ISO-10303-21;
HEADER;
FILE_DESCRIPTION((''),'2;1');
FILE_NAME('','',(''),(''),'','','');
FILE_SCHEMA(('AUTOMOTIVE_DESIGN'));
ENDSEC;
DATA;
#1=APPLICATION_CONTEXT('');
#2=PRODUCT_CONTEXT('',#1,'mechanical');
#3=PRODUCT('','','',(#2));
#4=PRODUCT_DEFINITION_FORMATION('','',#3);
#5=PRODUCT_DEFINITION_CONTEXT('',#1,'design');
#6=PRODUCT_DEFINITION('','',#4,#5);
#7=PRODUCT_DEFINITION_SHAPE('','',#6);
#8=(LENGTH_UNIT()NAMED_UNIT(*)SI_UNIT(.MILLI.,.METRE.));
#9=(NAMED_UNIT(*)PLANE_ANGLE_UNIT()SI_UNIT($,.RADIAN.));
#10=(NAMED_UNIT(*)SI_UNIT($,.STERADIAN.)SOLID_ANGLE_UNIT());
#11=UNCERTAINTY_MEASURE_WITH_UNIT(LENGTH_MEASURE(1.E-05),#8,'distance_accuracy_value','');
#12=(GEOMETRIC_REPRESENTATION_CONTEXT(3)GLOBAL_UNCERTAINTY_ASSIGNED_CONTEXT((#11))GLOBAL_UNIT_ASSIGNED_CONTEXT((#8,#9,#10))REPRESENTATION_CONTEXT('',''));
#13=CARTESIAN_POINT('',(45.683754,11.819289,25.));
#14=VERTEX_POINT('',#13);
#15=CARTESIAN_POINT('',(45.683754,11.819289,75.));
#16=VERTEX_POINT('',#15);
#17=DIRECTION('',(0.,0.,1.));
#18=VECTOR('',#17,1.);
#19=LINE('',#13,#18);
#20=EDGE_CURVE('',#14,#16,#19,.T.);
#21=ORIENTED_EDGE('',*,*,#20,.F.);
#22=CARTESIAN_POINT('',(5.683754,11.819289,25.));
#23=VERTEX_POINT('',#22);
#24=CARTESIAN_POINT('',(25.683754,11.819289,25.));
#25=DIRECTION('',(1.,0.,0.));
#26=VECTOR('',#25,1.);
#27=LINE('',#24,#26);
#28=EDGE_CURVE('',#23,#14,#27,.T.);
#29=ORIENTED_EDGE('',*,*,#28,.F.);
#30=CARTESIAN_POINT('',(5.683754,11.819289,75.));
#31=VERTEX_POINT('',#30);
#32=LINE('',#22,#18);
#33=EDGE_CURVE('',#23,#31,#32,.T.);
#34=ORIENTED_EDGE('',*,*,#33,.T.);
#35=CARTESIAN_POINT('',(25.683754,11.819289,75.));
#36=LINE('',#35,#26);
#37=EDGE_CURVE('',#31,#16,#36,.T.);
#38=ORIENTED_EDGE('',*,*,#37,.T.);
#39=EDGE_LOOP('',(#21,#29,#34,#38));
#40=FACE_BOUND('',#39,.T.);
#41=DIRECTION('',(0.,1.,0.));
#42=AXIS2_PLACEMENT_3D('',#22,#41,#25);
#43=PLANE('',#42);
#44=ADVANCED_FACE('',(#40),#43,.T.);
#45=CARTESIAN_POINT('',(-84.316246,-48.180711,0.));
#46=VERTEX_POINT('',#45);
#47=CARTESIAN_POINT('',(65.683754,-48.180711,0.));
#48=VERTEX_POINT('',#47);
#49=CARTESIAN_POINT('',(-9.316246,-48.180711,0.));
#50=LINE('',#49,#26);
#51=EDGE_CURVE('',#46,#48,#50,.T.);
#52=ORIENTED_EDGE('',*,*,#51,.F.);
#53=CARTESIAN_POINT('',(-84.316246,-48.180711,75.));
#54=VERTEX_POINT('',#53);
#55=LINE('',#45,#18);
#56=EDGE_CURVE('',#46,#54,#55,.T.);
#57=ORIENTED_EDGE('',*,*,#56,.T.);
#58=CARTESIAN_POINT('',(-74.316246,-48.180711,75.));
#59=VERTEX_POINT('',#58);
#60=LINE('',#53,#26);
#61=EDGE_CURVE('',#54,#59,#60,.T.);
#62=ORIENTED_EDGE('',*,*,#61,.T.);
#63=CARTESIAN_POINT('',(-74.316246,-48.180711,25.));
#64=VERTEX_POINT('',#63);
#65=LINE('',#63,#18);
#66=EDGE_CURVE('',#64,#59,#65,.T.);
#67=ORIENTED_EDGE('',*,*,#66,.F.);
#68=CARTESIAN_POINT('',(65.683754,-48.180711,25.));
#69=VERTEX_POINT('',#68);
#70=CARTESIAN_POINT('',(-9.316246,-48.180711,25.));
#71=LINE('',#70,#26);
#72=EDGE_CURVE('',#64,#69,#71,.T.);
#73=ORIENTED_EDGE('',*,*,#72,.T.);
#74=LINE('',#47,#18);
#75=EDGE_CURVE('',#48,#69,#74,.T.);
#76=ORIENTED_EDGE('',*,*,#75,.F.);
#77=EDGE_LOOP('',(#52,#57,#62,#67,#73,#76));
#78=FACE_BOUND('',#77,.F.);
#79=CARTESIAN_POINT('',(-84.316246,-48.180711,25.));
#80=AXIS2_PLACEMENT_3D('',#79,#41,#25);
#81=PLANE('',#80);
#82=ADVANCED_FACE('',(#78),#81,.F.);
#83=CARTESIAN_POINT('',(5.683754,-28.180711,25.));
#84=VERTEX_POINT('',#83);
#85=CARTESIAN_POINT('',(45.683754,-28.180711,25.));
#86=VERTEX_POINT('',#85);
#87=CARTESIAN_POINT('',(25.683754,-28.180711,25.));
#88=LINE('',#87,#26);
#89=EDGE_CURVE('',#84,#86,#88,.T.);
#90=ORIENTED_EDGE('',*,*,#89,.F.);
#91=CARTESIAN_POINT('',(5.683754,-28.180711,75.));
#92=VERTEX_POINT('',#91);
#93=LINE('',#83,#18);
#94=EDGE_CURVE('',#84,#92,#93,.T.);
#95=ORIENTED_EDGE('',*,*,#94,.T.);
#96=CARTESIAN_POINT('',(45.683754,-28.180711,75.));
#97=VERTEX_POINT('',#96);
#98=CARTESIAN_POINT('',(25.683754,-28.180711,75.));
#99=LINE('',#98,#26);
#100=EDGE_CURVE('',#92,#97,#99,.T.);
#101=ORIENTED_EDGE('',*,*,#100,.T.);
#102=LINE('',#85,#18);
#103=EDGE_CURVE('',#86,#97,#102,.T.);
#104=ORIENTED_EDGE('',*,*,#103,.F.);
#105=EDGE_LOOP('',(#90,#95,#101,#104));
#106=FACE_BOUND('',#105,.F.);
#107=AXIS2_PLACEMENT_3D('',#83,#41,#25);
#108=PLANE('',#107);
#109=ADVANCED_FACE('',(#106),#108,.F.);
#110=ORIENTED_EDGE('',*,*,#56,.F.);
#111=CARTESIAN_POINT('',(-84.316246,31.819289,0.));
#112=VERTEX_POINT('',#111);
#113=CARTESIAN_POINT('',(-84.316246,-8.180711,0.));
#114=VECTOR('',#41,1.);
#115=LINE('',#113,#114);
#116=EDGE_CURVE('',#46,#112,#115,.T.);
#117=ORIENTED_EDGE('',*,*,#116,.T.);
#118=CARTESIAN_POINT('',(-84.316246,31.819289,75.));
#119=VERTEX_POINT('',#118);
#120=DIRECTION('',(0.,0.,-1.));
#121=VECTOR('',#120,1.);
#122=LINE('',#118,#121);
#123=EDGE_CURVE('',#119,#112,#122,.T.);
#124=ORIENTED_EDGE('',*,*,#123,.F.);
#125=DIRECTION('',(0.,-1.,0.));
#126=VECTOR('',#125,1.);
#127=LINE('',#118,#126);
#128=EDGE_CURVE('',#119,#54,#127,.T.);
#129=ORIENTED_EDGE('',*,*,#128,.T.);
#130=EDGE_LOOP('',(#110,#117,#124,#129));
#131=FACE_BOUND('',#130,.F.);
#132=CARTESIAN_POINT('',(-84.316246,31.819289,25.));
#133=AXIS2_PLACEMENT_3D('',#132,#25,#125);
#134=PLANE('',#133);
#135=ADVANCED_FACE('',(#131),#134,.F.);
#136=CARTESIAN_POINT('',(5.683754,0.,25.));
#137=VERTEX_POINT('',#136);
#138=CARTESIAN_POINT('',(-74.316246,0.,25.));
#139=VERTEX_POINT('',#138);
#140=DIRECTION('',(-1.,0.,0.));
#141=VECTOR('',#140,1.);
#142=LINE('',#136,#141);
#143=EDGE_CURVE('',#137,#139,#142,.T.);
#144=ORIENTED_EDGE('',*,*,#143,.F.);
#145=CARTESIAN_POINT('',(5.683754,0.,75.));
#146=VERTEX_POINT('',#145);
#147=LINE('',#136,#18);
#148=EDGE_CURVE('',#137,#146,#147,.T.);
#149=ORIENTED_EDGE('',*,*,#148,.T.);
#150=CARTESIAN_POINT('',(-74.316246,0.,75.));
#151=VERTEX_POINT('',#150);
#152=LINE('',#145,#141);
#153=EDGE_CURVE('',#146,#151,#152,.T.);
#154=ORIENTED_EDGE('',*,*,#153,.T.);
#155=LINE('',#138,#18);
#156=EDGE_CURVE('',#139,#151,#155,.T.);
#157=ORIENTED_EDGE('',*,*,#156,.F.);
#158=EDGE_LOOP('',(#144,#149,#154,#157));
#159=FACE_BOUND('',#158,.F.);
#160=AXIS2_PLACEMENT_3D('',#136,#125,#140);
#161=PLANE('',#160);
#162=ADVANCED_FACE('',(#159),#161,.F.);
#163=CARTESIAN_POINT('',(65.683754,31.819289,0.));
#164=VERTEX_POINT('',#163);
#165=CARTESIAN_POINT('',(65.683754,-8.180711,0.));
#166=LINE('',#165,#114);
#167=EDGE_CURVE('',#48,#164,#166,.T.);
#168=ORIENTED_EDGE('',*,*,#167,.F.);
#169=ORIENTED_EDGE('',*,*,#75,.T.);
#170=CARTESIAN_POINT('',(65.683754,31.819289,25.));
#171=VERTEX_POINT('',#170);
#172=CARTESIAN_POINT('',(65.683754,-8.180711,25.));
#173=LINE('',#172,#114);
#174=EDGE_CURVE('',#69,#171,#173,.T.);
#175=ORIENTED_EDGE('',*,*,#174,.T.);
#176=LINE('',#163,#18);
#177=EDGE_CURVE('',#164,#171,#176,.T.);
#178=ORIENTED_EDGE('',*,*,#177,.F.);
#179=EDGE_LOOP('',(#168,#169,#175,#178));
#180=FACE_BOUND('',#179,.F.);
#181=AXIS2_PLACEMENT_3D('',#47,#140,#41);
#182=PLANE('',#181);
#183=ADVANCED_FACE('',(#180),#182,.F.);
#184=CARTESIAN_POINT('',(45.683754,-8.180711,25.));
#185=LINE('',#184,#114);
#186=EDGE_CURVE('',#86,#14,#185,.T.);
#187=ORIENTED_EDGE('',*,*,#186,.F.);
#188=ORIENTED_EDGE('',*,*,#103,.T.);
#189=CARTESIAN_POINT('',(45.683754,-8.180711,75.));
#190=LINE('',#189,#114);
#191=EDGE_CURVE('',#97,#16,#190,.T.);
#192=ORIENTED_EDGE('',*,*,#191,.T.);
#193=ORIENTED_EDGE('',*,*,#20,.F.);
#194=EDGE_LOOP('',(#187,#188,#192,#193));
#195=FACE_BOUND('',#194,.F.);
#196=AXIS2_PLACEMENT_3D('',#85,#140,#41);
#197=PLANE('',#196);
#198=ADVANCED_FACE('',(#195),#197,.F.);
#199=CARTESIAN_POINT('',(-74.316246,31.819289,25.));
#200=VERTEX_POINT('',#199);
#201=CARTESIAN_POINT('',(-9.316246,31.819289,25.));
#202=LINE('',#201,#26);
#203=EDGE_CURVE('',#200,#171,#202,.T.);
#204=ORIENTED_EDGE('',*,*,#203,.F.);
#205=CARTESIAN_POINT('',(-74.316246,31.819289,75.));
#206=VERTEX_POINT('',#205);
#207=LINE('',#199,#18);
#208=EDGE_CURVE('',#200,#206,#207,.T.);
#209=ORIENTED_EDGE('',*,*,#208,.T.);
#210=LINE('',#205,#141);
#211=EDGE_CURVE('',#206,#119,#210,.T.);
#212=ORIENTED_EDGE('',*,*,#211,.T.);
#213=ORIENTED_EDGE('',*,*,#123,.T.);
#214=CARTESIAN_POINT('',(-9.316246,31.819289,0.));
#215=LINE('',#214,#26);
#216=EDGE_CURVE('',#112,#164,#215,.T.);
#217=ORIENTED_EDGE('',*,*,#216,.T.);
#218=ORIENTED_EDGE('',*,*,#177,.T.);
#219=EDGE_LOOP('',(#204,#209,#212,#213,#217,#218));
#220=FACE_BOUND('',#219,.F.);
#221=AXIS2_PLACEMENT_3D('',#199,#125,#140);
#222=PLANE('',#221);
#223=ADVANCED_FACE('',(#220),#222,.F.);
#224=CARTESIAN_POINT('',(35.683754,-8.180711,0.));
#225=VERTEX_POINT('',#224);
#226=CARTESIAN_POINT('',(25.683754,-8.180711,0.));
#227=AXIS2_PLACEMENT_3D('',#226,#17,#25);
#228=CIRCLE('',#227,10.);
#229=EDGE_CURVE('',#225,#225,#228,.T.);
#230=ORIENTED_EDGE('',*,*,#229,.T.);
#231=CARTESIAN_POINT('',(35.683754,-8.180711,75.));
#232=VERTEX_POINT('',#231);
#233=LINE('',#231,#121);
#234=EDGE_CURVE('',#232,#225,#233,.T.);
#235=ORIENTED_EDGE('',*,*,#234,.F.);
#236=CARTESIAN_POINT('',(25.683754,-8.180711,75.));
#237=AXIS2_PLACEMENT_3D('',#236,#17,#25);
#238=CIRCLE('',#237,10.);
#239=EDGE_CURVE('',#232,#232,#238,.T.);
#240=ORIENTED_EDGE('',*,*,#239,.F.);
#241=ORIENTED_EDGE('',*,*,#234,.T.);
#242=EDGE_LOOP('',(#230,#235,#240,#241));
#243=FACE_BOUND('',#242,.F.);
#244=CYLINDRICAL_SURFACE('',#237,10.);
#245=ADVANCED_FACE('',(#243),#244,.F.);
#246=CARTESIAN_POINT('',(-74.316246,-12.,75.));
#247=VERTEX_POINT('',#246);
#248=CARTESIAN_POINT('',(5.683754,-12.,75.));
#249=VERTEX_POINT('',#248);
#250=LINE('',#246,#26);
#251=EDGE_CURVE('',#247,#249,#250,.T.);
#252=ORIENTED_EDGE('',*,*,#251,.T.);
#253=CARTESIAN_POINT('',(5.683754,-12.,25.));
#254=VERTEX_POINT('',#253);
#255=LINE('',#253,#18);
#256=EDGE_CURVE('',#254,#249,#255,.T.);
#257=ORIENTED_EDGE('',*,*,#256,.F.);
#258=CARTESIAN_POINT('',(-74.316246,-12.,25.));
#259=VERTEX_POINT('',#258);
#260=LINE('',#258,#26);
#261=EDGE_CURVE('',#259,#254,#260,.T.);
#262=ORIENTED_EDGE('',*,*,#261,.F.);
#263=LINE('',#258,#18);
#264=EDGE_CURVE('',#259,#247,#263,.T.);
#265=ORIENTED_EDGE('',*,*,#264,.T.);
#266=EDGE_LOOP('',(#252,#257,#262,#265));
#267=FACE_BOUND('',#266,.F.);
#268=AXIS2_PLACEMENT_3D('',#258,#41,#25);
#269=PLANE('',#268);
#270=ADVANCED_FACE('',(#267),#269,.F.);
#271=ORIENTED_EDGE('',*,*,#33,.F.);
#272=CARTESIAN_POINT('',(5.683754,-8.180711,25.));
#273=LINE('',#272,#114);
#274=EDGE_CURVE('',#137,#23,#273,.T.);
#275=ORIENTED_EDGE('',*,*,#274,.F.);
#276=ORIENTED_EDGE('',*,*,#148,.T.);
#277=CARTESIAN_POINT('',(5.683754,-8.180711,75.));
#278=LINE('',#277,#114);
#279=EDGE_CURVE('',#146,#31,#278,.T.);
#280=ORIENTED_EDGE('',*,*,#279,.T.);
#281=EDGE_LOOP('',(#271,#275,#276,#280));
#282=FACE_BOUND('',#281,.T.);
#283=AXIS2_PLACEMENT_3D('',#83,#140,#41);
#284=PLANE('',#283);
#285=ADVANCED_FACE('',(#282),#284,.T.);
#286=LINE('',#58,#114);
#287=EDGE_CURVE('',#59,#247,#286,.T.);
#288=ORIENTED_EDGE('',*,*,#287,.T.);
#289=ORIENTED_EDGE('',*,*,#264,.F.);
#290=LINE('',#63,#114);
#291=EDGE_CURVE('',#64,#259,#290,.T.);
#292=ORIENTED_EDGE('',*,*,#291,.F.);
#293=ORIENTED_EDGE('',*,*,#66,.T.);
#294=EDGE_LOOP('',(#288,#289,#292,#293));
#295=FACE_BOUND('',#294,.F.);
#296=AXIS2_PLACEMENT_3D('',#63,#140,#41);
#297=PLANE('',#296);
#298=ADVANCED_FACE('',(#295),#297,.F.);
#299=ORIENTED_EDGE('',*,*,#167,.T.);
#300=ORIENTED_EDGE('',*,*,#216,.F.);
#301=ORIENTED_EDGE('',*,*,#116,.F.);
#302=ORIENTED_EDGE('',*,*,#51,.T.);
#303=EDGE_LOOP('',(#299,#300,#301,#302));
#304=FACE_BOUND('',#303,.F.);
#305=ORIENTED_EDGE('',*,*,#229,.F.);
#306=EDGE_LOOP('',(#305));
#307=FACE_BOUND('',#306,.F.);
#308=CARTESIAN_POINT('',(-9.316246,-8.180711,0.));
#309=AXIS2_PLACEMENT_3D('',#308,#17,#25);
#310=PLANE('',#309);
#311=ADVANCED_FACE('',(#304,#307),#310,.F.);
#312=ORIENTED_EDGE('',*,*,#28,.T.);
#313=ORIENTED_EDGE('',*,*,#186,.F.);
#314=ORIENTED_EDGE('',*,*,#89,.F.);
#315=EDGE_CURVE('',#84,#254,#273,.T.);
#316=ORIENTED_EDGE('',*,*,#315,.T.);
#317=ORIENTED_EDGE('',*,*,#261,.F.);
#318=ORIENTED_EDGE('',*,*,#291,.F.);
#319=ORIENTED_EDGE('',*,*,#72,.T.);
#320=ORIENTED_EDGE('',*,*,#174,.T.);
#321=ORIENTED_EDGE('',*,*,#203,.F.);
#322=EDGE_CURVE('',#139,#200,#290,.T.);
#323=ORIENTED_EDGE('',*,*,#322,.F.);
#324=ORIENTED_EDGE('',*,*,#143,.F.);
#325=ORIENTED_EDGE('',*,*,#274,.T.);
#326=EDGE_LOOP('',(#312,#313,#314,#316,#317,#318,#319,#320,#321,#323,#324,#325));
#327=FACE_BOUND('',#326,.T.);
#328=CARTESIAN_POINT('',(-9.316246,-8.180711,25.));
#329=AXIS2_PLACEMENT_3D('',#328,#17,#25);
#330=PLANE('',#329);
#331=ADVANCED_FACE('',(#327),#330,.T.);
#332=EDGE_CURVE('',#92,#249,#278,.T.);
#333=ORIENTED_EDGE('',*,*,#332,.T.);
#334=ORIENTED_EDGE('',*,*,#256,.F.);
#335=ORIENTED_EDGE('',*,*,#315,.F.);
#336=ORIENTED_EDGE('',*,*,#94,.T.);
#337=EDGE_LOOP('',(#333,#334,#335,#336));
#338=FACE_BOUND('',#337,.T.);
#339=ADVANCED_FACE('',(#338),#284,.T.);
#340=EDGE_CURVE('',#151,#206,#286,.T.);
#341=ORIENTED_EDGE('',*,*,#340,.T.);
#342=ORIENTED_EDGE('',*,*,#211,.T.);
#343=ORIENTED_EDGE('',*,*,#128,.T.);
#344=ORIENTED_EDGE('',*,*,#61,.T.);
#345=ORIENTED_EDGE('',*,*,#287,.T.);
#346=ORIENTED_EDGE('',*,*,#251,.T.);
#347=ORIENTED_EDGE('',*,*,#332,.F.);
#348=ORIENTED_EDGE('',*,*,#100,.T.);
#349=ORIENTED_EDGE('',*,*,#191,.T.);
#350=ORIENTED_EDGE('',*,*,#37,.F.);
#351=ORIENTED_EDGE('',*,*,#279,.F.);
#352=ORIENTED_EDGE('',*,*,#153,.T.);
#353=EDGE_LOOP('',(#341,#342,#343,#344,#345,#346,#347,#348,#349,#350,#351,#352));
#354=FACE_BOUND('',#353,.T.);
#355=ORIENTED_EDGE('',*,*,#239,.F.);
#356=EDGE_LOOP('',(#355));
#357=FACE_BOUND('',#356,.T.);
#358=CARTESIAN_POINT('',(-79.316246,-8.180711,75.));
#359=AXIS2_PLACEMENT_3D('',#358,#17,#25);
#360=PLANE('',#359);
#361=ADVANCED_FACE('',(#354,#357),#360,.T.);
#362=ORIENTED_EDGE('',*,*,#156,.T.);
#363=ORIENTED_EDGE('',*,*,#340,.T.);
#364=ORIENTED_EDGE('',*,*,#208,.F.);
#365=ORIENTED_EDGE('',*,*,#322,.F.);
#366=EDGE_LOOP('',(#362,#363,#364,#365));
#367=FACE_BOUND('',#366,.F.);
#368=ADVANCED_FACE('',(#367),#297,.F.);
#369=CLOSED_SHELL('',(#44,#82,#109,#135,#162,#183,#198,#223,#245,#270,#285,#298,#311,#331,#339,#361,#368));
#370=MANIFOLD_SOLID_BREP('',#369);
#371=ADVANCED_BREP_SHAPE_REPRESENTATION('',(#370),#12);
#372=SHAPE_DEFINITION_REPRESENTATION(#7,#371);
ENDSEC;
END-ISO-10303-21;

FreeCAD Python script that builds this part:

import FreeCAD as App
import Part
import Sketcher
from FreeCAD import Vector


def add_polygon(sketch, points):
    """Adds a closed chain of lines whose ends are joined by coincident constraints."""
    first, n = sketch.GeometryCount, len(points)
    for a, b in zip(points, points[1:] + points[:1]):
        sketch.addGeometry(Part.LineSegment(App.Vector(*a, 0), App.Vector(*b, 0)), False)
    for i in range(n):
        sketch.addConstraint(Sketcher.Constraint("Coincident", first + i, 2, first + (i + 1) % n, 1))

doc = App.newDocument("Part")
body = doc.addObject("PartDesign::Body", "Body")

# Sketch on XY plane
sketch1 = body.newObject("Sketcher::SketchObject", "Sketch")
sketch1.AttachmentSupport = (doc.getObject("XY_Plane"), [""])
sketch1.MapMode = "FlatFace"
add_polygon(sketch1, [(-84, 32), (-84, -48), (66, -48), (66, 32)])  # lines 0-3
sketch1.addConstraint(Sketcher.Constraint("Vertical", 0))
sketch1.addConstraint(Sketcher.Constraint("Horizontal", 1))
sketch1.addConstraint(Sketcher.Constraint("Vertical", 2))
sketch1.addConstraint(Sketcher.Constraint("Horizontal", 3))
sketch1.addConstraint(Sketcher.Constraint("DistanceX", 1, 1, 1, 2, 150.0))
sketch1.addConstraint(Sketcher.Constraint("DistanceY", 0, 2, 0, 1, 80.0))
sketch1.addConstraint(Sketcher.Constraint("DistanceY", 0, 2, -1, 1, 48.180711))
sketch1.addConstraint(Sketcher.Constraint("DistanceX", 0, 2, -1, 1, 84.316246))
pad1 = body.newObject("PartDesign::Pad", "Pad")
pad1.Profile = sketch1
pad1.Length = 25

# Sketch on XY plane
sketch2 = body.newObject("Sketcher::SketchObject", "Sketch001")
sketch2.AttachmentSupport = (doc.getObject("XY_Plane"), [""])
sketch2.MapMode = "FlatFace"
sketch2.AttachmentOffset = App.Placement(Vector(0, 0, 25), App.Rotation())
add_polygon(sketch2, [(6, 12), (6, -28), (46, -28), (46, 12)])  # lines 0-3
sketch2.addConstraint(Sketcher.Constraint("Vertical", 0))
sketch2.addConstraint(Sketcher.Constraint("Horizontal", 1))
sketch2.addConstraint(Sketcher.Constraint("Vertical", 2))
sketch2.addConstraint(Sketcher.Constraint("Horizontal", 3))
sketch2.addConstraint(Sketcher.Constraint("Equal", 3, 0))
sketch2.addConstraint(Sketcher.Constraint("DistanceX", 1, 1, 1, 2, 40.0))
sketch2.addConstraint(Sketcher.Constraint("DistanceY", 0, 2, -1, 1, 28.180711))
sketch2.addConstraint(Sketcher.Constraint("DistanceX", -1, 1, 0, 2, 5.683754))
pad2 = body.newObject("PartDesign::Pad", "Pad001")
pad2.Profile = sketch2
pad2.Length = 50

# Sketch on XY plane
sketch3 = body.newObject("Sketcher::SketchObject", "Sketch002")
sketch3.AttachmentSupport = (doc.getObject("XY_Plane"), [""])
sketch3.MapMode = "FlatFace"
sketch3.AttachmentOffset = App.Placement(Vector(0, 0, 75), App.Rotation())
sketch3.addGeometry(Part.Circle(Vector(26, -8, 0), Vector(0, 0, 1), 10), False)
sketch3.addConstraint(Sketcher.Constraint("Diameter", 0, 20.0))
sketch3.addConstraint(Sketcher.Constraint("DistanceY", 0, 3, -1, 1, 8.180711))
sketch3.addConstraint(Sketcher.Constraint("DistanceX", -1, 1, 0, 3, 25.683754))
pocket1 = body.newObject("PartDesign::Pocket", "Pocket")
pocket1.Profile = sketch3
pocket1.Length = 75

# Sketch on XY plane
sketch4 = body.newObject("Sketcher::SketchObject", "Sketch003")
sketch4.AttachmentSupport = (doc.getObject("XY_Plane"), [""])
sketch4.MapMode = "FlatFace"
sketch4.AttachmentOffset = App.Placement(Vector(0, 0, 25), App.Rotation())
add_polygon(sketch4, [(6, 0), (-74, 0), (-74, -12), (6, -12)])  # lines 0-3
sketch4.addConstraint(Sketcher.Constraint("Horizontal", 0))
sketch4.addConstraint(Sketcher.Constraint("Vertical", 1))
sketch4.addConstraint(Sketcher.Constraint("Horizontal", 2))
sketch4.addConstraint(Sketcher.Constraint("Vertical", 3))
sketch4.addConstraint(Sketcher.Constraint("PointOnObject", 0, 2, -1))
sketch4.addConstraint(Sketcher.Constraint("DistanceX", 0, 2, 0, 1, 80.0))
sketch4.addConstraint(Sketcher.Constraint("DistanceY", 1, 2, 1, 1, 12.0))
sketch4.addConstraint(Sketcher.Constraint("DistanceX", 0, 2, -1, 1, 74.316246))
pad3 = body.newObject("PartDesign::Pad", "Pad002")
pad3.Profile = sketch4
pad3.Length = 50

# Sketch on XY plane
sketch5 = body.newObject("Sketcher::SketchObject", "Sketch004")
sketch5.AttachmentSupport = (doc.getObject("XY_Plane"), [""])
sketch5.MapMode = "FlatFace"
sketch5.AttachmentOffset = App.Placement(Vector(0, 0, 25), App.Rotation())
add_polygon(sketch5, [(-84, 32), (-84, -48), (-74, -48), (-74, 32)])  # lines 0-3
sketch5.addConstraint(Sketcher.Constraint("Vertical", 0))
sketch5.addConstraint(Sketcher.Constraint("Horizontal", 1))
sketch5.addConstraint(Sketcher.Constraint("Vertical", 2))
sketch5.addConstraint(Sketcher.Constraint("Horizontal", 3))
sketch5.addConstraint(Sketcher.Constraint("DistanceX", 1, 1, 1, 2, 10.0))
sketch5.addConstraint(Sketcher.Constraint("DistanceY", 0, 2, 0, 1, 80.0))
sketch5.addConstraint(Sketcher.Constraint("DistanceY", 0, 2, -1, 1, 48.180711))
sketch5.addConstraint(Sketcher.Constraint("DistanceX", 0, 2, -1, 1, 84.316246))
pad4 = body.newObject("PartDesign::Pad", "Pad003")
pad4.Profile = sketch5
pad4.Length = 50

doc.recompute()
